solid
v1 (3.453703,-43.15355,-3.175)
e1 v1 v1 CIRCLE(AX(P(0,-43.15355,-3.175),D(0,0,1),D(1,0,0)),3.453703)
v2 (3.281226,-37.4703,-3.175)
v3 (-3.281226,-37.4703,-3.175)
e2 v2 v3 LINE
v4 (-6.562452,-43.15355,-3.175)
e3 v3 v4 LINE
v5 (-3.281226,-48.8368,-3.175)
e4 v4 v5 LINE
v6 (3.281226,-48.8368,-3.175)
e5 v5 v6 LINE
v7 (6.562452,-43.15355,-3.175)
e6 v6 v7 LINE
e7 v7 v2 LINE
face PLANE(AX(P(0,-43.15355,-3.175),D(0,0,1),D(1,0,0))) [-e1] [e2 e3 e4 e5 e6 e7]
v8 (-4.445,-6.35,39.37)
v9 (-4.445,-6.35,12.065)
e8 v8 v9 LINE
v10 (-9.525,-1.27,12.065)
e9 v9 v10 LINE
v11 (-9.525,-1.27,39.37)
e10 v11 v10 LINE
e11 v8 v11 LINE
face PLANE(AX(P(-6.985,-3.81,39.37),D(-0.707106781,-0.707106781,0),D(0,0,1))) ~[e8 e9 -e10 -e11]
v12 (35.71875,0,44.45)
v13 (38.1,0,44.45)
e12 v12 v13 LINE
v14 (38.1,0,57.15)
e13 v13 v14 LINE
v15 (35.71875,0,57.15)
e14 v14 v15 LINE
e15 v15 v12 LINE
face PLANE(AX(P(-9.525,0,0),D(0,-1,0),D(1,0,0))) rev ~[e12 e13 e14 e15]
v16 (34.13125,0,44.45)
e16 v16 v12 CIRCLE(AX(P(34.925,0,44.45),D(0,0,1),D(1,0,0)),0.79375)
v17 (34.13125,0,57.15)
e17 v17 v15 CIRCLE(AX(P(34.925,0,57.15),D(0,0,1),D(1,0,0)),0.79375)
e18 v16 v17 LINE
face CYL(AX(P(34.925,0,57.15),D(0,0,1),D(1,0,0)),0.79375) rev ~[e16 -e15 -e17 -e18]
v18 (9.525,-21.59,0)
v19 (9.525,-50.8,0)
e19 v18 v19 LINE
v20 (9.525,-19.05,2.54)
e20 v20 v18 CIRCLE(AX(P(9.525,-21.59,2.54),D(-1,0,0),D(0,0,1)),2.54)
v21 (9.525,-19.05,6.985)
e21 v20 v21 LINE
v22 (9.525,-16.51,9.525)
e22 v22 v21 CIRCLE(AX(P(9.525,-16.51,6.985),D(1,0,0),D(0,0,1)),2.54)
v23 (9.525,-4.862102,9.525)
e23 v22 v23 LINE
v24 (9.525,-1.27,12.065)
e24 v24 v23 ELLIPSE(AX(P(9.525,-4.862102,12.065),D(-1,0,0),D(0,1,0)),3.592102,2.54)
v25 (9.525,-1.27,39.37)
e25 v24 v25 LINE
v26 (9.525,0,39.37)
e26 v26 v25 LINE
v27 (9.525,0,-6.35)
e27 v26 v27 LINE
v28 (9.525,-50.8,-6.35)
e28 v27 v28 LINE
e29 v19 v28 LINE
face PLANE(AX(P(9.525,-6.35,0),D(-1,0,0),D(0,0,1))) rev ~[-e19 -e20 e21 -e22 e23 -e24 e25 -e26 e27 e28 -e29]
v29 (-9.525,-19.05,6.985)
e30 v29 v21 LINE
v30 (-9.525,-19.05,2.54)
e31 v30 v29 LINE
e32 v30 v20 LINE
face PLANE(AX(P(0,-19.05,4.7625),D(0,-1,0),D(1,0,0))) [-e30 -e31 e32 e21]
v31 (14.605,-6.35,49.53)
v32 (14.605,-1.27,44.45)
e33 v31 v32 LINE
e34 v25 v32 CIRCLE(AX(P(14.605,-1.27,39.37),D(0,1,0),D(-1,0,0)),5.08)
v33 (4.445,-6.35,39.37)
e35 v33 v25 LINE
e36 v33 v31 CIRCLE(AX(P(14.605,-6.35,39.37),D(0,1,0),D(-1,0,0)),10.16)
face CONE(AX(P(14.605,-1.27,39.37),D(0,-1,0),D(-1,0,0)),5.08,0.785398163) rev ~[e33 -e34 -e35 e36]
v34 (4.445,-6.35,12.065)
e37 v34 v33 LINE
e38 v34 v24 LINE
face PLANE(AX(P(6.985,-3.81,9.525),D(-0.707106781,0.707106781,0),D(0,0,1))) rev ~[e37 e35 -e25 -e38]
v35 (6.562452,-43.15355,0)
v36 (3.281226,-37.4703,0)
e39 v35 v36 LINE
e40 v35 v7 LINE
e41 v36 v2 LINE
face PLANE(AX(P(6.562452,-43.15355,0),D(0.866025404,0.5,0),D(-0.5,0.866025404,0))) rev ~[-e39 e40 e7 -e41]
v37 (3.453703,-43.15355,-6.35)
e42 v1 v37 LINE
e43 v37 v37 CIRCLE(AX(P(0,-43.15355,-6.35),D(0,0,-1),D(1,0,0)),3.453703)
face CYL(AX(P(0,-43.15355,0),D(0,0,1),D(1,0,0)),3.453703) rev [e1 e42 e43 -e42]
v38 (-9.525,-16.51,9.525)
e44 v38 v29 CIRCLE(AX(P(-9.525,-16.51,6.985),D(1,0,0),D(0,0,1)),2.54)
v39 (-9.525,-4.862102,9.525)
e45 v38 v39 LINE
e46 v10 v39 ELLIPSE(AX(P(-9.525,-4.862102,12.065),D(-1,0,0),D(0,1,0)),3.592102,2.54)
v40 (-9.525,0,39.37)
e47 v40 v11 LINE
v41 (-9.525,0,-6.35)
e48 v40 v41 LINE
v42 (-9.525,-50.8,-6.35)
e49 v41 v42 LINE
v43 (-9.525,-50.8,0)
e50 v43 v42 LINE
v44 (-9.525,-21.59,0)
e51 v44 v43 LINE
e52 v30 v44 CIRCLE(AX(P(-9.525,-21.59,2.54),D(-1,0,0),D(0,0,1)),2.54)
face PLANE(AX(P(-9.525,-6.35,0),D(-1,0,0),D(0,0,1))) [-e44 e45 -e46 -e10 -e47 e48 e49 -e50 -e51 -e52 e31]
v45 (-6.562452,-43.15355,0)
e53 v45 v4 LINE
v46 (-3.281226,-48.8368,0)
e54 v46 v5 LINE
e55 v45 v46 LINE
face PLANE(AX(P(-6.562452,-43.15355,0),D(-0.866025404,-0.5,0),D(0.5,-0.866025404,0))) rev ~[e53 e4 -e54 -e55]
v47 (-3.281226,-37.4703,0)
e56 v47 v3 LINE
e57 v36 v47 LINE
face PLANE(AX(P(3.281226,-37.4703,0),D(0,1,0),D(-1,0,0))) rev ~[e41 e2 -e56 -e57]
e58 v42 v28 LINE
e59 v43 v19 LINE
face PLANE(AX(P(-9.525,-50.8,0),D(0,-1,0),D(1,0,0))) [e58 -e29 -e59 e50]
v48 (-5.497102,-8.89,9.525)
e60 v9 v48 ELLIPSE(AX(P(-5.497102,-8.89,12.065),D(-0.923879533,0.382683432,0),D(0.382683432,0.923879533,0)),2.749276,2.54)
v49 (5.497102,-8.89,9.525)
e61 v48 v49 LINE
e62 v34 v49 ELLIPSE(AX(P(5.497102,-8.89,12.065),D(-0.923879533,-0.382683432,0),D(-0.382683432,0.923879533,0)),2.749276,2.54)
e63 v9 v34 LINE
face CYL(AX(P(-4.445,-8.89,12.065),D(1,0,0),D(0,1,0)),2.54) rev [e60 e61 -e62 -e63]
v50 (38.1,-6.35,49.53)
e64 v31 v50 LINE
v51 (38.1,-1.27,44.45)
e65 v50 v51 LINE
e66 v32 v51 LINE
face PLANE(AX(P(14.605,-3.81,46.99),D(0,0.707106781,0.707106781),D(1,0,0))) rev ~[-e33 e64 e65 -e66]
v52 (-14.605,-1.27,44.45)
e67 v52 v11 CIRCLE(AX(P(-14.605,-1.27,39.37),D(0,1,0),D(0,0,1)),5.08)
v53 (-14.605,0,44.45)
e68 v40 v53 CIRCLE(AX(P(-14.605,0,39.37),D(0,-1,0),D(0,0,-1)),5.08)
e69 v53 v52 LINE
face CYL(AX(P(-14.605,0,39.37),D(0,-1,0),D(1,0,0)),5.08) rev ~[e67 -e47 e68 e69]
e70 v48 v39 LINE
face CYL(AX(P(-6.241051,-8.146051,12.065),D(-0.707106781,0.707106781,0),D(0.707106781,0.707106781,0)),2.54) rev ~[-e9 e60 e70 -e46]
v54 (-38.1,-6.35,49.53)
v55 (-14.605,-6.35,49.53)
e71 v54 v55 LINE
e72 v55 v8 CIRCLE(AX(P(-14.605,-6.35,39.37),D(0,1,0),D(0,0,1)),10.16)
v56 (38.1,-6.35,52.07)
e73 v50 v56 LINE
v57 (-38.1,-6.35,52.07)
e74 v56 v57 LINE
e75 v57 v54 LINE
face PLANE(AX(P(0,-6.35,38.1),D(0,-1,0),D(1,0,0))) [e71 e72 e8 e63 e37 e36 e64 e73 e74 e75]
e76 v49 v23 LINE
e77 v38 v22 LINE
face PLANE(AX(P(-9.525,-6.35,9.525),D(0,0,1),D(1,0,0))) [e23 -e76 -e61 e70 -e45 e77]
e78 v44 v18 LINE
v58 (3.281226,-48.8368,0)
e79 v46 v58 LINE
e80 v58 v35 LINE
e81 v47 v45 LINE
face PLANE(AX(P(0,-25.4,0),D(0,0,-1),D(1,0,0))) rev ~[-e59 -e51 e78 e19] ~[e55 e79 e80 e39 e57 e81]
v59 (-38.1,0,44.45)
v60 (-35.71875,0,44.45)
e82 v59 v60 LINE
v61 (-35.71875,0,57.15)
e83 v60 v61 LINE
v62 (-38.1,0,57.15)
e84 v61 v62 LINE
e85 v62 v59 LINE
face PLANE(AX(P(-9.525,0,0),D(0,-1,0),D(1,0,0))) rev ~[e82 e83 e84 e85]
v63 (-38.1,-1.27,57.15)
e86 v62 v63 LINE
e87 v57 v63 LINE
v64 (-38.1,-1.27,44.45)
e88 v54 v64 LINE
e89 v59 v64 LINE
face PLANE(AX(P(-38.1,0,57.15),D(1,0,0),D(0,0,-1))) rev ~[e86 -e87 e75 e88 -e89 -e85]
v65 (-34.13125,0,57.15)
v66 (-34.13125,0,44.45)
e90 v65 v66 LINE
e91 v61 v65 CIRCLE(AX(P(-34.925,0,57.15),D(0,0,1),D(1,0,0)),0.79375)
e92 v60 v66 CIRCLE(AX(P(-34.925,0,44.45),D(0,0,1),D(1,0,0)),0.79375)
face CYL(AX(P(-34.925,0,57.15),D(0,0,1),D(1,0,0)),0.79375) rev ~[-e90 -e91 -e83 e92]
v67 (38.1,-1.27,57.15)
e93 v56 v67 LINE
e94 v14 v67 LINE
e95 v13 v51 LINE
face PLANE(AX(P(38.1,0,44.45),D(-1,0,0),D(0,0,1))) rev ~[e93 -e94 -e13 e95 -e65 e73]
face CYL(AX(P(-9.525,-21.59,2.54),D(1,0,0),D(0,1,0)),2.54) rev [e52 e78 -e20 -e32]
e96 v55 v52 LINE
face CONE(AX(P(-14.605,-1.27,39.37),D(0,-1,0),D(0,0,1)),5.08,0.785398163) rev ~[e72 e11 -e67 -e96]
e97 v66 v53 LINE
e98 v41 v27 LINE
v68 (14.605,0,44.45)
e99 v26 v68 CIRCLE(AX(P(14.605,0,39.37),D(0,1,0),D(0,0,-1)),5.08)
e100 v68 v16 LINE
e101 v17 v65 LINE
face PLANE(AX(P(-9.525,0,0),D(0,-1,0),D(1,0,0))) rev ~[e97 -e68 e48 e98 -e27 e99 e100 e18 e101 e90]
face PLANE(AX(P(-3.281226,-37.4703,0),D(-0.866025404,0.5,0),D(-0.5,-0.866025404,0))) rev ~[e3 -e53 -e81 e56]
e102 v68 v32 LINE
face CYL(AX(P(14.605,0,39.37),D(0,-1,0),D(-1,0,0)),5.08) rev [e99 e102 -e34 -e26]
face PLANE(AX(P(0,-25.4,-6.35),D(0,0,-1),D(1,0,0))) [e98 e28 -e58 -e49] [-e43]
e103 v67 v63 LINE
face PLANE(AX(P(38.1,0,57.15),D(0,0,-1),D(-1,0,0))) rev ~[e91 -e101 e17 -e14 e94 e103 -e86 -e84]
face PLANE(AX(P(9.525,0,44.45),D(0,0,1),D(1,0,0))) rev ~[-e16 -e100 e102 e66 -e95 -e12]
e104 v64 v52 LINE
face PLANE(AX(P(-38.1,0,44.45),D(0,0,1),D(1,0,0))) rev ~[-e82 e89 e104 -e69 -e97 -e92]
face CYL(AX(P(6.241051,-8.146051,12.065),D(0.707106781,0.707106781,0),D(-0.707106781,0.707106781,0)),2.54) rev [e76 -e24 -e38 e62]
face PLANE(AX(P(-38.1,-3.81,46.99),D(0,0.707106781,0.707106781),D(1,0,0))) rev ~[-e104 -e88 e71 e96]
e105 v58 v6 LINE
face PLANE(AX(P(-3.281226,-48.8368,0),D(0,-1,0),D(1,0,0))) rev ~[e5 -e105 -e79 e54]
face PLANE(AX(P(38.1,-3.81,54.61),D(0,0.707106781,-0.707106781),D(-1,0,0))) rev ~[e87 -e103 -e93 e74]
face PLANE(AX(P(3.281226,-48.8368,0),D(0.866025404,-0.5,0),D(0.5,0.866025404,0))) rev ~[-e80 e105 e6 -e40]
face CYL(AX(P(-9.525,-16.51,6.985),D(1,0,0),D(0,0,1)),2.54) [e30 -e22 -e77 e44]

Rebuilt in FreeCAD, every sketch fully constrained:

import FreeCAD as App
import Part
import Sketcher
Q = App.Units.Quantity


def edges_at(feature, points):
    """Names of the edges that pass closest to the given points."""
    edges = feature.Shape.Edges
    near = lambda p: min(range(len(edges)), key=lambda i: edges[i].distToShape(Part.Vertex(*p))[0])
    return sorted({f"Edge{near(p) + 1}" for p in points})


def add_polygon(sketch, points):
    """Adds a closed chain of lines whose ends are joined by coincident constraints."""
    first, n = sketch.GeometryCount, len(points)
    for a, b in zip(points, points[1:] + points[:1]):
        sketch.addGeometry(Part.LineSegment(App.Vector(*a, 0), App.Vector(*b, 0)), False)
    for i in range(n):
        sketch.addConstraint(Sketcher.Constraint("Coincident", first + i, 2, first + (i + 1) % n, 1))

doc = App.newDocument("Part")
body = doc.addObject("PartDesign::Body", "Body")

# Sketch on XZ plane
sketch1 = doc.addObject("Sketcher::SketchObject", "Sketch")
body.addObject(sketch1)
sketch1.AttachmentSupport = (doc.XZ_Plane, [""])
sketch1.MapMode = "FlatFace"
add_polygon(sketch1, [(38, 57), (-38, 57), (-38, 44), (-10, 44), (-10, 0), (10, 0), (10, 44), (38, 44)])  # lines 0-7
sketch1.addConstraint([
    Sketcher.Constraint("Horizontal", 0),
    Sketcher.Constraint("Vertical", 1),
    Sketcher.Constraint("Horizontal", 2),
    Sketcher.Constraint("Vertical", 3),
    Sketcher.Constraint("Horizontal", 4),
    Sketcher.Constraint("Vertical", 5),
    Sketcher.Constraint("Horizontal", 6),
    Sketcher.Constraint("Vertical", 7),
    Sketcher.Constraint("Symmetric", 3, 2, 4, 2, -1, 1),
    Sketcher.Constraint("Symmetric", 1, 2, 6, 2, -2),
    Sketcher.Constraint("DistanceX", 0, 2, 0, 1, Q("3 in")),
    Sketcher.Constraint("DistanceY", 1, 2, 1, 1, Q("0.5 in")),
    Sketcher.Constraint("DistanceX", 4, 1, 4, 2, Q("0.75 in")),
    Sketcher.Constraint("DistanceY", 3, 2, 3, 1, Q("1.75 in")),
])
pad1 = doc.addObject("PartDesign::Pad", "Pad")
body.addObject(pad1)
pad1.Profile = sketch1
pad1.Length = Q("0.25 in")

# Sketch on XY plane
sketch2 = doc.addObject("Sketcher::SketchObject", "Sketch001")
body.addObject(sketch2)
sketch2.AttachmentSupport = (doc.XY_Plane, [""])
sketch2.MapMode = "FlatFace"
add_polygon(sketch2, [(-9.5, -50.8), (-9.5, 0), (9.5, 0), (9.5, -50.8)])  # lines 0-3
sketch2.addGeometry(Part.Circle(App.Vector(0, -43.2, 0), App.Vector(0, 0, 1), 3.5), False)  # 4
sketch2.addConstraint([
    Sketcher.Constraint("Vertical", 0),
    Sketcher.Constraint("Horizontal", 1),
    Sketcher.Constraint("Vertical", 2),
    Sketcher.Constraint("Horizontal", 3),
    Sketcher.Constraint("Symmetric", 0, 2, 1, 2, -1, 1),
    Sketcher.Constraint("PointOnObject", 4, 3, -2),
    Sketcher.Constraint("DistanceY", 0, 1, 0, 2, Q("2 in")),
    Sketcher.Constraint("DistanceX", 1, 1, 1, 2, Q("0.75 in")),
    Sketcher.Constraint("Diameter", 4, Q("6.907406 mm")),
    Sketcher.Constraint("DistanceY", 4, 3, -1, 1, Q("43.15355 mm")),
])
pad2 = doc.addObject("PartDesign::Pad", "Pad001")
body.addObject(pad2)
pad2.Profile = sketch2
pad2.Length = Q("0.25 in")
pad2.Reversed = True

# Sketch on XZ plane
sketch3 = doc.addObject("Sketcher::SketchObject", "Sketch002")
body.addObject(sketch3)
sketch3.AttachmentSupport = (doc.XZ_Plane, [""])
sketch3.MapMode = "FlatFace"
sketch3.AttachmentOffset = App.Placement(App.Vector(0, 0, 0.25 * 25.4), App.Rotation())
add_polygon(sketch3, [(-10, 10), (-10, 0), (10, 0), (10, 10)])  # lines 0-3
sketch3.addConstraint([
    Sketcher.Constraint("Vertical", 0),
    Sketcher.Constraint("Horizontal", 1),
    Sketcher.Constraint("Vertical", 2),
    Sketcher.Constraint("Horizontal", 3),
    Sketcher.Constraint("Symmetric", 0, 2, 1, 2, -1, 1),
    Sketcher.Constraint("DistanceX", 1, 1, 1, 2, Q("0.75 in")),
    Sketcher.Constraint("DistanceY", 0, 2, 0, 1, Q("0.375 in")),
])
pad3 = doc.addObject("PartDesign::Pad", "Pad002")
body.addObject(pad3)
pad3.Profile = sketch3
pad3.Length = Q("0.5 in")
doc.recompute()

fillet = doc.addObject("PartDesign::Fillet", "Fillet")
body.addObject(fillet)
fillet.Base = (pad3, edges_at(pad3, [(0, -19.05, 9.525), (0, -19.05, 0)]))
fillet.Radius = Q("0.1 in")

# Sketch on XY plane
sketch4 = doc.addObject("Sketcher::SketchObject", "Sketch003")
body.addObject(sketch4)
sketch4.AttachmentSupport = (doc.XY_Plane, [""])
sketch4.MapMode = "FlatFace"
add_polygon(sketch4, [(-6.6, -43.2), (-3.3, -48.8), (3.3, -48.8), (6.6, -43.2), (3.3, -37.5), (-3.3, -37.5)])  # lines 0-5
sketch4.addGeometry(Part.Circle(App.Vector(0, -43.2, 0), App.Vector(0, 0, 1), 3.5), False)  # 6
sketch4.addConstraint([
    Sketcher.Constraint("Horizontal", 1),
    Sketcher.Constraint("Horizontal", 4),
    Sketcher.Constraint("Symmetric", 2, 2, 5, 2, -2),
    Sketcher.Constraint("PointOnObject", 6, 3, -2),
    Sketcher.Constraint("Parallel", 0, 3),
    Sketcher.Constraint("Parallel", 2, 5),
    Sketcher.Constraint("Horizontal", 6, 3, 2, 2),
    Sketcher.Constraint("Vertical", 1, 2, 3, 2),
    Sketcher.Constraint("Vertical", 0, 2, 4, 2),
    Sketcher.Constraint("Angle", 0, Q("-60 deg")),
    Sketcher.Constraint("Diameter", 6, Q("6.907406 mm")),
    Sketcher.Constraint("DistanceY", 1, 2, 3, 2, Q("0.4475 in")),
    Sketcher.Constraint("DistanceX", 1, 1, 1, 2, Q("6.562452 mm")),
    Sketcher.Constraint("DistanceY", 0, 2, -1, 1, Q("48.8368 mm")),
])
pocket1 = doc.addObject("PartDesign::Pocket", "Pocket")
body.addObject(pocket1)
pocket1.Profile = sketch4
pocket1.Length = Q("0.125 in")
doc.recompute()

fillet2 = doc.addObject("PartDesign::Fillet", "Fillet001")
body.addObject(fillet2)
fillet2.Base = (pocket1, edges_at(pocket1, [(-9.525, -3.175, 44.45), (9.525, -3.175, 44.45)]))
fillet2.Radius = Q("0.2 in")
doc.recompute()

chamfer = doc.addObject("PartDesign::Chamfer", "Chamfer")
body.addObject(chamfer)
chamfer.Base = (fillet2, edges_at(fillet2, [(0, -6.35, 57.15), (-26.352, -6.35, 44.45), (11.013, -6.35, 42.962)]))
chamfer.Size = Q("0.2 in")
doc.recompute()

fillet3 = doc.addObject("PartDesign::Fillet", "Fillet002")
body.addObject(fillet3)
fillet3.Base = (chamfer, edges_at(chamfer, [(-6.985, -3.81, 9.525), (6.985, -3.81, 9.525), (0, -6.35, 9.525)]))
fillet3.Radius = Q("0.1 in")

# Sketch on XY plane
sketch5 = doc.addObject("Sketcher::SketchObject", "Sketch004")
body.addObject(sketch5)
sketch5.AttachmentSupport = (doc.XY_Plane, [""])
sketch5.MapMode = "FlatFace"
sketch5.AttachmentOffset = App.Placement(App.Vector(0, 0, 2.25 * 25.4), App.Rotation())
sketch5.addGeometry([
    Part.Circle(App.Vector(34.9, 0, 0), App.Vector(0, 0, 1), 0.8),
    Part.Circle(App.Vector(-34.9, 0, 0), App.Vector(0, 0, 1), 0.8),
], False)
sketch5.addConstraint([
    Sketcher.Constraint("Equal", 0, 1),
    Sketcher.Constraint("Symmetric", 0, 3, 1, 3, -1, 1),
    Sketcher.Constraint("PointOnObject", 0, 3, -1),
    Sketcher.Constraint("Diameter", 0, Q("0.0625 in")),
    Sketcher.Constraint("DistanceX", 1, 3, 0, 3, Q("2.75 in")),
])
pocket2 = doc.addObject("PartDesign::Pocket", "Pocket001")
body.addObject(pocket2)
pocket2.Profile = sketch5
pocket2.Length = Q("1 in")

doc.recompute()
